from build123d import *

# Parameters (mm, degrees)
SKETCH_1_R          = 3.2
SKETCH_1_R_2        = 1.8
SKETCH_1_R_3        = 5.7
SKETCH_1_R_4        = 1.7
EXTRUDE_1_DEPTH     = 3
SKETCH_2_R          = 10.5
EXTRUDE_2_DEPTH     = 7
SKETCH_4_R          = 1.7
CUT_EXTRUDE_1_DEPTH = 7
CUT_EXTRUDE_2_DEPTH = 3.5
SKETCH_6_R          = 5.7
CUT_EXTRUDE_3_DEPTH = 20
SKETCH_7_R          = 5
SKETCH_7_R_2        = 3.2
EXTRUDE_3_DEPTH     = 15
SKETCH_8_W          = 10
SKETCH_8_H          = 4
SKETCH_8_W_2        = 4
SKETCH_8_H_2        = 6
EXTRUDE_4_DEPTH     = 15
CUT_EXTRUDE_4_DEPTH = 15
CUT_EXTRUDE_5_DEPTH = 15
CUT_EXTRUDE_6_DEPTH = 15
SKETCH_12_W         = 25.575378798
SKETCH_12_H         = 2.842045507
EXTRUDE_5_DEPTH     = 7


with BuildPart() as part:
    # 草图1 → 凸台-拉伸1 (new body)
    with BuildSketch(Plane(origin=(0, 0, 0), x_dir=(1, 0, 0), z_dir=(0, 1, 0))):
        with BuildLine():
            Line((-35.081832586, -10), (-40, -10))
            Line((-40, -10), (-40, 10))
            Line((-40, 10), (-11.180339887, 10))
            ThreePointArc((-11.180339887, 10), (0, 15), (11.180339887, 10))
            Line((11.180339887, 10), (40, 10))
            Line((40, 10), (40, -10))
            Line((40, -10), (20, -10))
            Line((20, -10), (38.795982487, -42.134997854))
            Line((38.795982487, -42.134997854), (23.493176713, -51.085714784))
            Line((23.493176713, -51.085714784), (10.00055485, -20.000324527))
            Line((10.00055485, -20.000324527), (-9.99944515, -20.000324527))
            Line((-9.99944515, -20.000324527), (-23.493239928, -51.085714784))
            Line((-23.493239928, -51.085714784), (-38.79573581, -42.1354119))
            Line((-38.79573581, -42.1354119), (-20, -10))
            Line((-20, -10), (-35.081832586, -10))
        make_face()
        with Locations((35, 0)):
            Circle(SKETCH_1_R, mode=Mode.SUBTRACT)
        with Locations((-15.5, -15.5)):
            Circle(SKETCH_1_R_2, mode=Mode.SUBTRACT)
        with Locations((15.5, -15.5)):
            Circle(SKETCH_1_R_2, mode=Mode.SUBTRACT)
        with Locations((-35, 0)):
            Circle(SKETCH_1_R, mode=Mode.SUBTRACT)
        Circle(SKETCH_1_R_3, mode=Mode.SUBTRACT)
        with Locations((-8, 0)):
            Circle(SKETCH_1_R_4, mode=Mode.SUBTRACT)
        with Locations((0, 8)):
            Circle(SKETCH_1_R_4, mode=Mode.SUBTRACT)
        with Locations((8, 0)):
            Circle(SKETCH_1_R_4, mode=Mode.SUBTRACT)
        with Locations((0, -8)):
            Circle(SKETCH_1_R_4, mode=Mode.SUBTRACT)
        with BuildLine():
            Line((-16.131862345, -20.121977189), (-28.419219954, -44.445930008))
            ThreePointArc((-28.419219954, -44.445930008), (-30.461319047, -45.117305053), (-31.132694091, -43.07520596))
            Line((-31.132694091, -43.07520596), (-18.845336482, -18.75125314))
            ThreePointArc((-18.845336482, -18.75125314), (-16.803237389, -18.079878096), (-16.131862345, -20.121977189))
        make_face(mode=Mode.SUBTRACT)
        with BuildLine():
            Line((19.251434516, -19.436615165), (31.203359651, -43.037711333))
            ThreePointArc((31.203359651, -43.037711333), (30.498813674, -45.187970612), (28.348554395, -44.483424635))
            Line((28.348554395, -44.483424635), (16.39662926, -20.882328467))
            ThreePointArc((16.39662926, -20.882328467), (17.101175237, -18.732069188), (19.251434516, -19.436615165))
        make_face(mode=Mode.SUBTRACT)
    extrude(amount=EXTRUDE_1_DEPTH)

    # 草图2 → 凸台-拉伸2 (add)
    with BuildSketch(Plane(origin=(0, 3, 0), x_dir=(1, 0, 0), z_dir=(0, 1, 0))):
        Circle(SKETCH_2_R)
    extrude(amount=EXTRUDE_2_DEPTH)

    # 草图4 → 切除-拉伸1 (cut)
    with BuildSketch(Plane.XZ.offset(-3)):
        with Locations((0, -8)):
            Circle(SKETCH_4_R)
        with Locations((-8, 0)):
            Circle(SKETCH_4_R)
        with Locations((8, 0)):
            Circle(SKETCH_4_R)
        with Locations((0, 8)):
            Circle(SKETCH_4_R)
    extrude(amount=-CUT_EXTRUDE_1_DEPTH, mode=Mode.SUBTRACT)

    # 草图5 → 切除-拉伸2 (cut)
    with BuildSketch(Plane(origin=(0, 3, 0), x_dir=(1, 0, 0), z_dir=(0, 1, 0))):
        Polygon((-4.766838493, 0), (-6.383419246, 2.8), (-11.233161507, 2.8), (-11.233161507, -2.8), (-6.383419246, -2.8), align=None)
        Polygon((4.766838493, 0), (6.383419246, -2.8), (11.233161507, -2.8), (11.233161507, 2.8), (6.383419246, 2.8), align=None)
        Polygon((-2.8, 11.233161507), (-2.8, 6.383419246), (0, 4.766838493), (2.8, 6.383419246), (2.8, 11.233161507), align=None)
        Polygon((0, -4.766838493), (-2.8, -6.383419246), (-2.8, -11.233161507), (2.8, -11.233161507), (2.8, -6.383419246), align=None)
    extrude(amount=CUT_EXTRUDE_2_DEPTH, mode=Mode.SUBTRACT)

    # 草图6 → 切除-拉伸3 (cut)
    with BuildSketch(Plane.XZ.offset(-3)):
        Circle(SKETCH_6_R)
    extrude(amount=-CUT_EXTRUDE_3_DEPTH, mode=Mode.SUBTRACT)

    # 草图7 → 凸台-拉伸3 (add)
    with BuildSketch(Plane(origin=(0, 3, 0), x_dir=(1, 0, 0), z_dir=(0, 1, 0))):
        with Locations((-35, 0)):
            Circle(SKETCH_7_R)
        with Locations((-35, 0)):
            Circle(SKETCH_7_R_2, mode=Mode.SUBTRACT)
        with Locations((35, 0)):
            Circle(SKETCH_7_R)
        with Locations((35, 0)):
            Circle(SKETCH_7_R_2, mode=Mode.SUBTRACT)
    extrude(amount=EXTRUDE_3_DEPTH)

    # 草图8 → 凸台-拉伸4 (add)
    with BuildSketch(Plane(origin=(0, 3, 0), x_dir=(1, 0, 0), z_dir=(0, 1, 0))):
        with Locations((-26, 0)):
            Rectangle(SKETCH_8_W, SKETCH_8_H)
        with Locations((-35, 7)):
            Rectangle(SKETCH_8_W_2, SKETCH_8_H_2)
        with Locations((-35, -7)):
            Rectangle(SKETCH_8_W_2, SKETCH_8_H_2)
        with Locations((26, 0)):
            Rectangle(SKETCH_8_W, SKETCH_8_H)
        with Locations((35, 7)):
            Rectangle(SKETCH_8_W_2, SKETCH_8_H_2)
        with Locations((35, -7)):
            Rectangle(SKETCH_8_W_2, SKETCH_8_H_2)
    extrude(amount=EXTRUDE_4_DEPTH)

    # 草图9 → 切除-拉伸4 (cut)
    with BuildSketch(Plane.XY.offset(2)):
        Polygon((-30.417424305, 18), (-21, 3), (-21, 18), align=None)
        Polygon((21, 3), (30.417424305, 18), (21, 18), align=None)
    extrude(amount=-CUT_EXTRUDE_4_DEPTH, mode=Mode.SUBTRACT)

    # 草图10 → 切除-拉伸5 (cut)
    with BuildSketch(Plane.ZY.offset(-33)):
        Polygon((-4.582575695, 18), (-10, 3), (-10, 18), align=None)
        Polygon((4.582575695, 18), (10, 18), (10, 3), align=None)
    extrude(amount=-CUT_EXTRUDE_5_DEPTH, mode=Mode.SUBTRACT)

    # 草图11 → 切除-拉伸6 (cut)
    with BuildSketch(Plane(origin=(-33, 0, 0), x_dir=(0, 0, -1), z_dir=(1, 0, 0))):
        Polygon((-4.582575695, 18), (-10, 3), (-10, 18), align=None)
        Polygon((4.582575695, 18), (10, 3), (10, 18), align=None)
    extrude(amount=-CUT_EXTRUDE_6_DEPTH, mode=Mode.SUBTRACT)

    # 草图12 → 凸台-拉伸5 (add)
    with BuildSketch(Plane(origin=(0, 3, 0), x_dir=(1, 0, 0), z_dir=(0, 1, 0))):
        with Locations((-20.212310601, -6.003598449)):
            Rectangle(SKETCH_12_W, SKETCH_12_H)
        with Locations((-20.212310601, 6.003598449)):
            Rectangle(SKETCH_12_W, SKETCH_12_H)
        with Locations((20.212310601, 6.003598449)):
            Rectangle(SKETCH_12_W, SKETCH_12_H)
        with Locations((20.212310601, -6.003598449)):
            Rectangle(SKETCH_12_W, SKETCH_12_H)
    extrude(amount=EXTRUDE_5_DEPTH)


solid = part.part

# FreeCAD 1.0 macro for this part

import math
import FreeCAD as App
import Part
import Sketcher
Q = App.Units.Quantity

doc = App.newDocument("Part")
body = doc.addObject("PartDesign::Body", "Body")

# Sketch on XZ plane
sketch1 = body.newObject("Sketcher::SketchObject", "Sketch")
sketch1.AttachmentSupport = (doc.getObject("XZ_Plane"), [""])
sketch1.MapMode = "FlatFace"
sketch1.addGeometry([
    Part.LineSegment(App.Vector(-40, -10, 0), App.Vector(-40, 10, 0)),  # 0
    Part.LineSegment(App.Vector(-40, 10, 0), App.Vector(-20, 10, 0)),  # 1
    Part.LineSegment(App.Vector(-20, 10, 0), App.Vector(-38.8, 42.1, 0)),  # 2
    Part.LineSegment(App.Vector(-38.8, 42.1, 0), App.Vector(-23.5, 51.1, 0)),  # 3
    Part.LineSegment(App.Vector(-23.5, 51.1, 0), App.Vector(-10, 20, 0)),  # 4
    Part.LineSegment(App.Vector(-10, 20, 0), App.Vector(10, 20, 0)),  # 5
    Part.LineSegment(App.Vector(10, 20, 0), App.Vector(23.5, 51.1, 0)),  # 6
    Part.LineSegment(App.Vector(23.5, 51.1, 0), App.Vector(38.8, 42.1, 0)),  # 7
    Part.LineSegment(App.Vector(38.8, 42.1, 0), App.Vector(20, 10, 0)),  # 8
    Part.LineSegment(App.Vector(20, 10, 0), App.Vector(40, 10, 0)),  # 9
    Part.LineSegment(App.Vector(40, 10, 0), App.Vector(40, -10, 0)),  # 10
    Part.LineSegment(App.Vector(40, -10, 0), App.Vector(11.2, -10, 0)),  # 11
    Part.ArcOfCircle(Part.Circle(App.Vector(0, 0, 0), App.Vector(0, 0, 1), 15), math.radians(-138), math.radians(-42)),  # 12
    Part.LineSegment(App.Vector(-11.2, -10, 0), App.Vector(-40, -10, 0)),  # 13
    Part.LineSegment(App.Vector(19.3, 19.4, 0), App.Vector(31.2, 43, 0)),  # 14
    Part.ArcOfCircle(Part.Circle(App.Vector(29.8, 43.8, 0), App.Vector(0, 0, 1), 1.6), math.radians(-27), math.radians(153)),  # 15
    Part.LineSegment(App.Vector(28.3, 44.5, 0), App.Vector(16.4, 20.9, 0)),  # 16
    Part.ArcOfCircle(Part.Circle(App.Vector(17.8, 20.2, 0), App.Vector(0, 0, 1), 1.6), math.radians(153), math.radians(333)),  # 17
    Part.LineSegment(App.Vector(-16.1, 20.1, 0), App.Vector(-28.4, 44.4, 0)),  # 18
    Part.ArcOfCircle(Part.Circle(App.Vector(-29.8, 43.8, 0), App.Vector(0, 0, 1), 1.5), math.radians(27), math.radians(207)),  # 19
    Part.LineSegment(App.Vector(-31.1, 43.1, 0), App.Vector(-18.8, 18.8, 0)),  # 20
    Part.ArcOfCircle(Part.Circle(App.Vector(-17.5, 19.4, 0), App.Vector(0, 0, 1), 1.5), math.radians(-153), math.radians(27)),  # 21
    Part.Circle(App.Vector(15.5, 15.5, 0), App.Vector(0, 0, 1), 1.8),  # 22
    Part.Circle(App.Vector(0, 8, 0), App.Vector(0, 0, 1), 1.7),  # 23
    Part.Circle(App.Vector(35, 0, 0), App.Vector(0, 0, 1), 3.2),  # 24
    Part.Circle(App.Vector(8, 0, 0), App.Vector(0, 0, 1), 1.7),  # 25
    Part.Circle(App.Vector(0, 0, 0), App.Vector(0, 0, 1), 5.7),  # 26
    Part.Circle(App.Vector(0, -8, 0), App.Vector(0, 0, 1), 1.7),  # 27
    Part.Circle(App.Vector(-15.5, 15.5, 0), App.Vector(0, 0, 1), 1.8),  # 28
    Part.Circle(App.Vector(-8, 0, 0), App.Vector(0, 0, 1), 1.7),  # 29
    Part.Circle(App.Vector(-35, 0, 0), App.Vector(0, 0, 1), 3.2),  # 30
], False)
sketch1.addConstraint([
    Sketcher.Constraint("Coincident", 0, 2, 1, 1),
    Sketcher.Constraint("Coincident", 1, 2, 2, 1),
    Sketcher.Constraint("Coincident", 2, 2, 3, 1),
    Sketcher.Constraint("Coincident", 3, 2, 4, 1),
    Sketcher.Constraint("Coincident", 4, 2, 5, 1),
    Sketcher.Constraint("Coincident", 5, 2, 6, 1),
    Sketcher.Constraint("Coincident", 6, 2, 7, 1),
    Sketcher.Constraint("Coincident", 7, 2, 8, 1),
    Sketcher.Constraint("Coincident", 8, 2, 9, 1),
    Sketcher.Constraint("Coincident", 9, 2, 10, 1),
    Sketcher.Constraint("Coincident", 10, 2, 11, 1),
    Sketcher.Constraint("Coincident", 11, 2, 12, 2),
    Sketcher.Constraint("Coincident", 12, 1, 13, 1),
    Sketcher.Constraint("Coincident", 13, 2, 0, 1),
    Sketcher.Constraint("Tangent", 14, 2, 15, 1),
    Sketcher.Constraint("Tangent", 15, 2, 16, 1),
    Sketcher.Constraint("Tangent", 16, 2, 17, 1),
    Sketcher.Constraint("Tangent", 17, 2, 14, 1),
    Sketcher.Constraint("Tangent", 18, 2, 19, 1),
    Sketcher.Constraint("Tangent", 19, 2, 20, 1),
    Sketcher.Constraint("Tangent", 20, 2, 21, 1),
    Sketcher.Constraint("Tangent", 21, 2, 18, 1),
    Sketcher.Constraint("Vertical", 0),
    Sketcher.Constraint("Horizontal", 1),
    Sketcher.Constraint("Horizontal", 5),
    Sketcher.Constraint("Horizontal", 9),
    Sketcher.Constraint("Vertical", 10),
    Sketcher.Constraint("Horizontal", 11),
    Sketcher.Constraint("Horizontal", 13),
    Sketcher.Constraint("Coincident", 12, 3, -1, 1),
    Sketcher.Constraint("Coincident", 26, 3, -1, 1),
    Sketcher.Constraint("Equal", 15, 17),
    Sketcher.Constraint("Equal", 19, 21),
    Sketcher.Constraint("Equal", 23, 25),
    Sketcher.Constraint("Equal", 25, 27),
    Sketcher.Constraint("Equal", 22, 28),
    Sketcher.Constraint("Equal", 27, 29),
    Sketcher.Constraint("Equal", 24, 30),
    Sketcher.Constraint("Symmetric", 23, 3, 27, 3, -1, 1),
    Sketcher.Constraint("Symmetric", 25, 3, 29, 3, -1, 1),
    Sketcher.Constraint("Symmetric", 24, 3, 30, 3, -1, 1),
    Sketcher.Constraint("Symmetric", 0, 2, 10, 2, -1, 1),
    Sketcher.Constraint("Symmetric", 15, 3, 19, 3, -2),
    Sketcher.Constraint("Symmetric", 22, 3, 28, 3, -2),
    Sketcher.Constraint("Symmetric", 1, 2, 8, 2, -2),
    Sketcher.Constraint("PointOnObject", 23, 3, -2),
    Sketcher.Constraint("PointOnObject", 24, 3, -1),
    Sketcher.Constraint("PointOnObject", 25, 3, -1),
    Sketcher.Constraint("Perpendicular", 2, 3),
    Sketcher.Constraint("Perpendicular", 7, 8),
    Sketcher.Constraint("Horizontal", 3, 2, 6, 2),
    Sketcher.Constraint("Horizontal", 11, 2, 12, 1),
    Sketcher.Constraint("Horizontal", 21, 3, 17, 2),
    Sketcher.Constraint("Equal", 1, 5),
    Sketcher.Constraint("Equal", 9, 0),
    Sketcher.Constraint("Radius", 12, 15.0),
    Sketcher.Constraint("Diameter", 22, 3.6),
    Sketcher.Constraint("Diameter", 23, 3.4),
    Sketcher.Constraint("Diameter", 24, 6.4),
    Sketcher.Constraint("Diameter", 26, 11.4),
    Sketcher.Constraint("Radius", 15, 1.6),
    Sketcher.Constraint("DistanceX", 1, 1, 1, 2, 20.0),
    Sketcher.Constraint("DistanceY", -1, 1, 23, 3, 8.0),
    Sketcher.Constraint("DistanceX", -1, 1, 24, 3, 35.0),
    Sketcher.Constraint("DistanceX", -1, 1, 25, 3, 8.0),
    Sketcher.Constraint("DistanceX", 0, 2, -1, 1, 40.0),
    Sketcher.Constraint("DistanceX", -1, 1, 22, 3, 15.5),
    Sketcher.Constraint("DistanceY", -1, 1, 22, 3, 15.5),
    Sketcher.Constraint("Radius", 19, 1.520019),
    Sketcher.Constraint("DistanceX", 21, 3, -1, 1, 17.488599),
    Sketcher.Constraint("DistanceY", 21, 3, 3, 2, 31.6491),
    Sketcher.Constraint("Distance", 7, 17.72826),
    Sketcher.Constraint("Distance", 8, 37.22831),
    Sketcher.Constraint("Distance", 18, 27.251309),
    Sketcher.Constraint("DistanceX", -1, 1, 17, 3, 17.824032),
    Sketcher.Constraint("DistanceY", -1, 1, 17, 3, 20.159472),
    Sketcher.Constraint("DistanceY", -1, 1, 2, 2, 42.135412),
    Sketcher.Constraint("DistanceX", 3, 2, -1, 1, 23.49324),
    Sketcher.Constraint("DistanceX", -1, 1, 14, 2, 31.20336),
    Sketcher.Constraint("DistanceY", 21, 3, 4, 2, 0.563709),
    Sketcher.Constraint("DistanceX", 5, 2, 6, 2, 13.492622),
])
pad1 = body.newObject("PartDesign::Pad", "Pad")
pad1.Profile = sketch1
pad1.Length = 3
pad1.Reversed = True

# Sketch on XZ plane
sketch2 = body.newObject("Sketcher::SketchObject", "Sketch001")
sketch2.AttachmentSupport = (doc.getObject("XZ_Plane"), [""])
sketch2.MapMode = "FlatFace"
sketch2.AttachmentOffset = App.Placement(App.Vector(0, 0, -3), App.Rotation())
sketch2.addGeometry(Part.Circle(App.Vector(0, 0, 0), App.Vector(0, 0, 1), 10), False)
sketch2.addConstraint([
    Sketcher.Constraint("Coincident", 0, 3, -1, 1),
    Sketcher.Constraint("Diameter", 0, 21.0),
])
pad2 = body.newObject("PartDesign::Pad", "Pad001")
pad2.Profile = sketch2
pad2.Length = 7
pad2.Reversed = True

# Sketch on XZ plane
sketch3 = body.newObject("Sketcher::SketchObject", "Sketch002")
sketch3.AttachmentSupport = (doc.getObject("XZ_Plane"), [""])
sketch3.MapMode = "FlatFace"
sketch3.AttachmentOffset = App.Placement(App.Vector(0, 0, -3), App.Rotation())
sketch3.addGeometry([
    Part.Circle(App.Vector(0, -8, 0), App.Vector(0, 0, 1), 1.7),
    Part.Circle(App.Vector(-8, 0, 0), App.Vector(0, 0, 1), 1.7),
    Part.Circle(App.Vector(8, 0, 0), App.Vector(0, 0, 1), 1.7),
    Part.Circle(App.Vector(0, 8, 0), App.Vector(0, 0, 1), 1.7),
], False)
sketch3.addConstraint([
    Sketcher.Constraint("Equal", 0, 1),
    Sketcher.Constraint("Equal", 1, 2),
    Sketcher.Constraint("Equal", 2, 3),
    Sketcher.Constraint("Symmetric", 1, 3, 2, 3, -1, 1),
    Sketcher.Constraint("Symmetric", 0, 3, 3, 3, -1, 1),
    Sketcher.Constraint("PointOnObject", 0, 3, -2),
    Sketcher.Constraint("PointOnObject", 1, 3, -1),
    Sketcher.Constraint("Diameter", 0, 3.4),
    Sketcher.Constraint("DistanceY", 0, 3, -1, 1, 8.0),
    Sketcher.Constraint("DistanceX", 1, 3, -1, 1, 8.0),
])
pocket1 = body.newObject("PartDesign::Pocket", "Pocket")
pocket1.Profile = sketch3
pocket1.Length = 7

# Sketch on XZ plane
sketch4 = body.newObject("Sketcher::SketchObject", "Sketch003")
sketch4.AttachmentSupport = (doc.getObject("XZ_Plane"), [""])
sketch4.MapMode = "FlatFace"
sketch4.AttachmentOffset = App.Placement(App.Vector(0, 0, -3), App.Rotation())
sketch4.addGeometry([
    Part.LineSegment(App.Vector(-4.8, 0, 0), App.Vector(-6.4, -2.8, 0)),  # 0
    Part.LineSegment(App.Vector(-6.4, -2.8, 0), App.Vector(-11.2, -2.8, 0)),  # 1
    Part.LineSegment(App.Vector(-11.2, -2.8, 0), App.Vector(-11.2, 2.8, 0)),  # 2
    Part.LineSegment(App.Vector(-11.2, 2.8, 0), App.Vector(-6.4, 2.8, 0)),  # 3
    Part.LineSegment(App.Vector(-6.4, 2.8, 0), App.Vector(-4.8, 0, 0)),  # 4
    Part.LineSegment(App.Vector(4.8, 0, 0), App.Vector(6.4, 2.8, 0)),  # 5
    Part.LineSegment(App.Vector(6.4, 2.8, 0), App.Vector(11.2, 2.8, 0)),  # 6
    Part.LineSegment(App.Vector(11.2, 2.8, 0), App.Vector(11.2, -2.8, 0)),  # 7
    Part.LineSegment(App.Vector(11.2, -2.8, 0), App.Vector(6.4, -2.8, 0)),  # 8
    Part.LineSegment(App.Vector(6.4, -2.8, 0), App.Vector(4.8, 0, 0)),  # 9
    Part.LineSegment(App.Vector(-2.8, -11.2, 0), App.Vector(-2.8, -6.4, 0)),  # 10
    Part.LineSegment(App.Vector(-2.8, -6.4, 0), App.Vector(0, -4.8, 0)),  # 11
    Part.LineSegment(App.Vector(0, -4.8, 0), App.Vector(2.8, -6.4, 0)),  # 12
    Part.LineSegment(App.Vector(2.8, -6.4, 0), App.Vector(2.8, -11.2, 0)),  # 13
    Part.LineSegment(App.Vector(2.8, -11.2, 0), App.Vector(-2.8, -11.2, 0)),  # 14
    Part.LineSegment(App.Vector(0, 4.8, 0), App.Vector(-2.8, 6.4, 0)),  # 15
    Part.LineSegment(App.Vector(-2.8, 6.4, 0), App.Vector(-2.8, 11.2, 0)),  # 16
    Part.LineSegment(App.Vector(-2.8, 11.2, 0), App.Vector(2.8, 11.2, 0)),  # 17
    Part.LineSegment(App.Vector(2.8, 11.2, 0), App.Vector(2.8, 6.4, 0)),  # 18
    Part.LineSegment(App.Vector(2.8, 6.4, 0), App.Vector(0, 4.8, 0)),  # 19
], False)
sketch4.addConstraint([
    Sketcher.Constraint("Coincident", 0, 2, 1, 1),
    Sketcher.Constraint("Coincident", 1, 2, 2, 1),
    Sketcher.Constraint("Coincident", 2, 2, 3, 1),
    Sketcher.Constraint("Coincident", 3, 2, 4, 1),
    Sketcher.Constraint("Coincident", 4, 2, 0, 1),
    Sketcher.Constraint("Coincident", 5, 2, 6, 1),
    Sketcher.Constraint("Coincident", 6, 2, 7, 1),
    Sketcher.Constraint("Coincident", 7, 2, 8, 1),
    Sketcher.Constraint("Coincident", 8, 2, 9, 1),
    Sketcher.Constraint("Coincident", 9, 2, 5, 1),
    Sketcher.Constraint("Coincident", 10, 2, 11, 1),
    Sketcher.Constraint("Coincident", 11, 2, 12, 1),
    Sketcher.Constraint("Coincident", 12, 2, 13, 1),
    Sketcher.Constraint("Coincident", 13, 2, 14, 1),
    Sketcher.Constraint("Coincident", 14, 2, 10, 1),
    Sketcher.Constraint("Coincident", 15, 2, 16, 1),
    Sketcher.Constraint("Coincident", 16, 2, 17, 1),
    Sketcher.Constraint("Coincident", 17, 2, 18, 1),
    Sketcher.Constraint("Coincident", 18, 2, 19, 1),
    Sketcher.Constraint("Coincident", 19, 2, 15, 1),
    Sketcher.Constraint("Horizontal", 1),
    Sketcher.Constraint("Vertical", 2),
    Sketcher.Constraint("Horizontal", 3),
    Sketcher.Constraint("Horizontal", 6),
    Sketcher.Constraint("Vertical", 7),
    Sketcher.Constraint("Horizontal", 8),
    Sketcher.Constraint("Vertical", 10),
    Sketcher.Constraint("Vertical", 13),
    Sketcher.Constraint("Horizontal", 14),
    Sketcher.Constraint("Vertical", 16),
    Sketcher.Constraint("Horizontal", 17),
    Sketcher.Constraint("Vertical", 18),
    Sketcher.Constraint("Symmetric", 0, 2, 5, 2, -1, 1),
    Sketcher.Constraint("Symmetric", 2, 2, 7, 2, -1, 1),
    Sketcher.Constraint("Symmetric", 4, 2, 9, 2, -1, 1),
    Sketcher.Constraint("Symmetric", 12, 2, 15, 2, -1, 1),
    Sketcher.Constraint("Symmetric", 14, 2, 17, 2, -1, 1),
    Sketcher.Constraint("Symmetric", 11, 2, 19, 2, -1, 1),
    Sketcher.Constraint("Symmetric", 3, 2, 5, 2, -2),
    Sketcher.Constraint("Symmetric", 10, 2, 12, 2, -2),
    Sketcher.Constraint("PointOnObject", 4, 2, -1),
    Sketcher.Constraint("PointOnObject", 11, 2, -2),
    Sketcher.Constraint("Parallel", 4, 9),
    Sketcher.Constraint("Perpendicular", 9, 11),
    Sketcher.Constraint("Parallel", 11, 19),
    Sketcher.Constraint("Equal", 17, 2),
    Sketcher.Constraint("Equal", 8, 10),
    Sketcher.Constraint("Angle", 0, Q("-120 deg")),
    Sketcher.Constraint("DistanceX", 14, 2, 14, 1, 5.6),
    Sketcher.Constraint("DistanceX", 4, 2, 6, 2, 16.0),
    Sketcher.Constraint("DistanceX", 1, 2, 1, 1, 4.849742),
    Sketcher.Constraint("DistanceY", 10, 2, -1, 1, 6.383419),
])
pocket2 = body.newObject("PartDesign::Pocket", "Pocket001")
pocket2.Profile = sketch4
pocket2.Length = 3.5

# Sketch on XZ plane
sketch5 = body.newObject("Sketcher::SketchObject", "Sketch004")
sketch5.AttachmentSupport = (doc.getObject("XZ_Plane"), [""])
sketch5.MapMode = "FlatFace"
sketch5.AttachmentOffset = App.Placement(App.Vector(0, 0, -3), App.Rotation())
sketch5.addGeometry(Part.Circle(App.Vector(0, 0, 0), App.Vector(0, 0, 1), 6), False)
sketch5.addConstraint([
    Sketcher.Constraint("Coincident", 0, 3, -1, 1),
    Sketcher.Constraint("Diameter", 0, 11.4),
])
pocket3 = body.newObject("PartDesign::Pocket", "Pocket002")
pocket3.Profile = sketch5
pocket3.Length = 20

# Sketch on XZ plane
sketch6 = body.newObject("Sketcher::SketchObject", "Sketch005")
sketch6.AttachmentSupport = (doc.getObject("XZ_Plane"), [""])
sketch6.MapMode = "FlatFace"
sketch6.AttachmentOffset = App.Placement(App.Vector(0, 0, -3), App.Rotation())
sketch6.addGeometry([
    Part.Circle(App.Vector(-35, 0, 0), App.Vector(0, 0, 1), 5),
    Part.Circle(App.Vector(-35, 0, 0), App.Vector(0, 0, 1), 3.2),
    Part.Circle(App.Vector(35, 0, 0), App.Vector(0, 0, 1), 5),
    Part.Circle(App.Vector(35, 0, 0), App.Vector(0, 0, 1), 3.2),
], False)
sketch6.addConstraint([
    Sketcher.Constraint("Coincident", 1, 3, 0, 3),
    Sketcher.Constraint("Coincident", 3, 3, 2, 3),
    Sketcher.Constraint("Equal", 0, 2),
    Sketcher.Constraint("Equal", 1, 3),
    Sketcher.Constraint("Symmetric", 0, 3, 2, 3, -1, 1),
    Sketcher.Constraint("PointOnObject", 0, 3, -1),
    Sketcher.Constraint("Diameter", 0, 10.0),
    Sketcher.Constraint("Diameter", 1, 6.4),
    Sketcher.Constraint("DistanceX", 0, 3, -1, 1, 35.0),
])
pad3 = body.newObject("PartDesign::Pad", "Pad002")
pad3.Profile = sketch6
pad3.Length = 15
pad3.Reversed = True

# Sketch on XZ plane
sketch7 = body.newObject("Sketcher::SketchObject", "Sketch006")
sketch7.AttachmentSupport = (doc.getObject("XZ_Plane"), [""])
sketch7.MapMode = "FlatFace"
sketch7.AttachmentOffset = App.Placement(App.Vector(0, 0, -3), App.Rotation())
sketch7.addGeometry([
    Part.LineSegment(App.Vector(-31, -2, 0), App.Vector(-31, 2, 0)),  # 0
    Part.LineSegment(App.Vector(-31, 2, 0), App.Vector(-21, 2, 0)),  # 1
    Part.LineSegment(App.Vector(-21, 2, 0), App.Vector(-21, -2, 0)),  # 2
    Part.LineSegment(App.Vector(-21, -2, 0), App.Vector(-31, -2, 0)),  # 3
    Part.LineSegment(App.Vector(-37, -10, 0), App.Vector(-37, -4, 0)),  # 4
    Part.LineSegment(App.Vector(-37, -4, 0), App.Vector(-33, -4, 0)),  # 5
    Part.LineSegment(App.Vector(-33, -4, 0), App.Vector(-33, -10, 0)),  # 6
    Part.LineSegment(App.Vector(-33, -10, 0), App.Vector(-37, -10, 0)),  # 7
    Part.LineSegment(App.Vector(-37, 4, 0), App.Vector(-37, 10, 0)),  # 8
    Part.LineSegment(App.Vector(-37, 10, 0), App.Vector(-33, 10, 0)),  # 9
    Part.LineSegment(App.Vector(-33, 10, 0), App.Vector(-33, 4, 0)),  # 10
    Part.LineSegment(App.Vector(-33, 4, 0), App.Vector(-37, 4, 0)),  # 11
    Part.LineSegment(App.Vector(21, -2, 0), App.Vector(21, 2, 0)),  # 12
    Part.LineSegment(App.Vector(21, 2, 0), App.Vector(31, 2, 0)),  # 13
    Part.LineSegment(App.Vector(31, 2, 0), App.Vector(31, -2, 0)),  # 14
    Part.LineSegment(App.Vector(31, -2, 0), App.Vector(21, -2, 0)),  # 15
    Part.LineSegment(App.Vector(33, -10, 0), App.Vector(33, -4, 0)),  # 16
    Part.LineSegment(App.Vector(33, -4, 0), App.Vector(37, -4, 0)),  # 17
    Part.LineSegment(App.Vector(37, -4, 0), App.Vector(37, -10, 0)),  # 18
    Part.LineSegment(App.Vector(37, -10, 0), App.Vector(33, -10, 0)),  # 19
    Part.LineSegment(App.Vector(33, 4, 0), App.Vector(33, 10, 0)),  # 20
    Part.LineSegment(App.Vector(33, 10, 0), App.Vector(37, 10, 0)),  # 21
    Part.LineSegment(App.Vector(37, 10, 0), App.Vector(37, 4, 0)),  # 22
    Part.LineSegment(App.Vector(37, 4, 0), App.Vector(33, 4, 0)),  # 23
], False)
sketch7.addConstraint([
    Sketcher.Constraint("Coincident", 0, 2, 1, 1),
    Sketcher.Constraint("Coincident", 1, 2, 2, 1),
    Sketcher.Constraint("Coincident", 2, 2, 3, 1),
    Sketcher.Constraint("Coincident", 3, 2, 0, 1),
    Sketcher.Constraint("Coincident", 4, 2, 5, 1),
    Sketcher.Constraint("Coincident", 5, 2, 6, 1),
    Sketcher.Constraint("Coincident", 6, 2, 7, 1),
    Sketcher.Constraint("Coincident", 7, 2, 4, 1),
    Sketcher.Constraint("Coincident", 8, 2, 9, 1),
    Sketcher.Constraint("Coincident", 9, 2, 10, 1),
    Sketcher.Constraint("Coincident", 10, 2, 11, 1),
    Sketcher.Constraint("Coincident", 11, 2, 8, 1),
    Sketcher.Constraint("Coincident", 12, 2, 13, 1),
    Sketcher.Constraint("Coincident", 13, 2, 14, 1),
    Sketcher.Constraint("Coincident", 14, 2, 15, 1),
    Sketcher.Constraint("Coincident", 15, 2, 12, 1),
    Sketcher.Constraint("Coincident", 16, 2, 17, 1),
    Sketcher.Constraint("Coincident", 17, 2, 18, 1),
    Sketcher.Constraint("Coincident", 18, 2, 19, 1),
    Sketcher.Constraint("Coincident", 19, 2, 16, 1),
    Sketcher.Constraint("Coincident", 20, 2, 21, 1),
    Sketcher.Constraint("Coincident", 21, 2, 22, 1),
    Sketcher.Constraint("Coincident", 22, 2, 23, 1),
    Sketcher.Constraint("Coincident", 23, 2, 20, 1),
    Sketcher.Constraint("Vertical", 0),
    Sketcher.Constraint("Horizontal", 1),
    Sketcher.Constraint("Vertical", 2),
    Sketcher.Constraint("Horizontal", 3),
    Sketcher.Constraint("Vertical", 4),
    Sketcher.Constraint("Horizontal", 5),
    Sketcher.Constraint("Vertical", 6),
    Sketcher.Constraint("Horizontal", 7),
    Sketcher.Constraint("Vertical", 8),
    Sketcher.Constraint("Horizontal", 9),
    Sketcher.Constraint("Vertical", 10),
    Sketcher.Constraint("Horizontal", 11),
    Sketcher.Constraint("Vertical", 12),
    Sketcher.Constraint("Horizontal", 13),
    Sketcher.Constraint("Vertical", 14),
    Sketcher.Constraint("Horizontal", 15),
    Sketcher.Constraint("Vertical", 16),
    Sketcher.Constraint("Horizontal", 17),
    Sketcher.Constraint("Vertical", 18),
    Sketcher.Constraint("Horizontal", 19),
    Sketcher.Constraint("Vertical", 20),
    Sketcher.Constraint("Horizontal", 21),
    Sketcher.Constraint("Vertical", 22),
    Sketcher.Constraint("Horizontal", 23),
    Sketcher.Constraint("Symmetric", 2, 2, 12, 2, -1, 1),
    Sketcher.Constraint("Symmetric", 0, 2, 14, 2, -1, 1),
    Sketcher.Constraint("Symmetric", 10, 2, 16, 2, -1, 1),
    Sketcher.Constraint("Symmetric", 8, 2, 18, 2, -1, 1),
    Sketcher.Constraint("Symmetric", 6, 2, 20, 2, -1, 1),
    Sketcher.Constraint("Symmetric", 4, 2, 22, 2, -1, 1),
    Sketcher.Constraint("Symmetric", 5, 2, 16, 2, -2),
    Sketcher.Constraint("Symmetric", 7, 2, 18, 2, -2),
    Sketcher.Constraint("Horizontal", 1, 2, 12, 2),
    Sketcher.Constraint("Equal", 23, 0),
    Sketcher.Constraint("DistanceX", 1, 1, 1, 2, 10.0),
    Sketcher.Constraint("DistanceX", 5, 1, 5, 2, 4.0),
    Sketcher.Constraint("DistanceY", 4, 1, 4, 2, 6.0),
    Sketcher.Constraint("DistanceX", 0, 2, -1, 1, 31.0),
    Sketcher.Constraint("DistanceX", 4, 2, -1, 1, 37.0),
    Sketcher.Constraint("DistanceY", 4, 2, -1, 1, 4.0),
])
pad4 = body.newObject("PartDesign::Pad", "Pad003")
pad4.Profile = sketch7
pad4.Length = 15
pad4.Reversed = True

# Sketch on XY plane
sketch8 = body.newObject("Sketcher::SketchObject", "Sketch007")
sketch8.AttachmentSupport = (doc.getObject("XY_Plane"), [""])
sketch8.MapMode = "FlatFace"
sketch8.AttachmentOffset = App.Placement(App.Vector(0, 0, 2), App.Rotation())
sketch8.addGeometry([
    Part.LineSegment(App.Vector(-30, 18, 0), App.Vector(-21, 3, 0)),  # 0
    Part.LineSegment(App.Vector(-21, 3, 0), App.Vector(-21, 18, 0)),  # 1
    Part.LineSegment(App.Vector(-21, 18, 0), App.Vector(-30, 18, 0)),  # 2
    Part.LineSegment(App.Vector(21, 3, 0), App.Vector(30, 18, 0)),  # 3
    Part.LineSegment(App.Vector(30, 18, 0), App.Vector(21, 18, 0)),  # 4
    Part.LineSegment(App.Vector(21, 18, 0), App.Vector(21, 3, 0)),  # 5
], False)
sketch8.addConstraint([
    Sketcher.Constraint("Coincident", 0, 2, 1, 1),
    Sketcher.Constraint("Coincident", 1, 2, 2, 1),
    Sketcher.Constraint("Coincident", 2, 2, 0, 1),
    Sketcher.Constraint("Coincident", 3, 2, 4, 1),
    Sketcher.Constraint("Coincident", 4, 2, 5, 1),
    Sketcher.Constraint("Coincident", 5, 2, 3, 1),
    Sketcher.Constraint("Vertical", 1),
    Sketcher.Constraint("Horizontal", 2),
    Sketcher.Constraint("Horizontal", 4),
    Sketcher.Constraint("Vertical", 5),
    Sketcher.Constraint("Symmetric", 2, 2, 3, 2, -2),
    Sketcher.Constraint("Symmetric", 0, 2, 5, 2, -2),
    Sketcher.Constraint("DistanceY", 1, 1, 1, 2, 15.0),
    Sketcher.Constraint("DistanceX", 0, 2, -1, 1, 21.0),
    Sketcher.Constraint("DistanceY", -1, 1, 0, 2, 3.0),
    Sketcher.Constraint("DistanceX", 2, 2, 2, 1, 9.417424),
])
pocket4 = body.newObject("PartDesign::Pocket", "Pocket003")
pocket4.Profile = sketch8
pocket4.Length = 15

# Sketch on YZ plane
sketch9 = body.newObject("Sketcher::SketchObject", "Sketch008")
sketch9.AttachmentSupport = (doc.getObject("YZ_Plane"), [""])
sketch9.MapMode = "FlatFace"
sketch9.AttachmentOffset = App.Placement(App.Vector(0, 0, 33), App.Rotation())
sketch9.addGeometry([
    Part.LineSegment(App.Vector(3, -10, 0), App.Vector(18, -5, 0)),  # 0
    Part.LineSegment(App.Vector(18, -5, 0), App.Vector(18, -10, 0)),  # 1
    Part.LineSegment(App.Vector(18, -10, 0), App.Vector(3, -10, 0)),  # 2
    Part.LineSegment(App.Vector(18, 10, 0), App.Vector(18, 5, 0)),  # 3
    Part.LineSegment(App.Vector(18, 5, 0), App.Vector(3, 10, 0)),  # 4
    Part.LineSegment(App.Vector(3, 10, 0), App.Vector(18, 10, 0)),  # 5
], False)
sketch9.addConstraint([
    Sketcher.Constraint("Coincident", 0, 2, 1, 1),
    Sketcher.Constraint("Coincident", 1, 2, 2, 1),
    Sketcher.Constraint("Coincident", 2, 2, 0, 1),
    Sketcher.Constraint("Coincident", 3, 2, 4, 1),
    Sketcher.Constraint("Coincident", 4, 2, 5, 1),
    Sketcher.Constraint("Coincident", 5, 2, 3, 1),
    Sketcher.Constraint("Vertical", 1),
    Sketcher.Constraint("Horizontal", 2),
    Sketcher.Constraint("Vertical", 3),
    Sketcher.Constraint("Horizontal", 5),
    Sketcher.Constraint("Symmetric", 0, 2, 3, 2, -1),
    Sketcher.Constraint("Symmetric", 2, 2, 4, 2, -1),
    Sketcher.Constraint("DistanceX", 2, 2, 2, 1, 15.0),
    Sketcher.Constraint("DistanceX", -1, 1, 0, 2, 18.0),
    Sketcher.Constraint("DistanceY", 1, 2, -1, 1, 10.0),
    Sketcher.Constraint("DistanceY", 1, 2, 1, 1, 5.417424),
])
pocket5 = body.newObject("PartDesign::Pocket", "Pocket004")
pocket5.Profile = sketch9
pocket5.Length = 15
pocket5.Reversed = True

# Sketch on YZ plane
sketch10 = body.newObject("Sketcher::SketchObject", "Sketch009")
sketch10.AttachmentSupport = (doc.getObject("YZ_Plane"), [""])
sketch10.MapMode = "FlatFace"
sketch10.AttachmentOffset = App.Placement(App.Vector(0, 0, -33), App.Rotation())
sketch10.addGeometry([
    Part.LineSegment(App.Vector(3, 10, 0), App.Vector(18, 5, 0)),  # 0
    Part.LineSegment(App.Vector(18, 5, 0), App.Vector(18, 10, 0)),  # 1
    Part.LineSegment(App.Vector(18, 10, 0), App.Vector(3, 10, 0)),  # 2
    Part.LineSegment(App.Vector(18, -5, 0), App.Vector(3, -10, 0)),  # 3
    Part.LineSegment(App.Vector(3, -10, 0), App.Vector(18, -10, 0)),  # 4
    Part.LineSegment(App.Vector(18, -10, 0), App.Vector(18, -5, 0)),  # 5
], False)
sketch10.addConstraint([
    Sketcher.Constraint("Coincident", 0, 2, 1, 1),
    Sketcher.Constraint("Coincident", 1, 2, 2, 1),
    Sketcher.Constraint("Coincident", 2, 2, 0, 1),
    Sketcher.Constraint("Coincident", 3, 2, 4, 1),
    Sketcher.Constraint("Coincident", 4, 2, 5, 1),
    Sketcher.Constraint("Coincident", 5, 2, 3, 1),
    Sketcher.Constraint("Vertical", 1),
    Sketcher.Constraint("Horizontal", 2),
    Sketcher.Constraint("Horizontal", 4),
    Sketcher.Constraint("Vertical", 5),
    Sketcher.Constraint("Symmetric", 2, 2, 3, 2, -1),
    Sketcher.Constraint("Symmetric", 0, 2, 5, 2, -1),
    Sketcher.Constraint("DistanceX", 2, 2, 2, 1, 15.0),
    Sketcher.Constraint("DistanceX", -1, 1, 0, 2, 18.0),
    Sketcher.Constraint("DistanceY", -1, 1, 1, 2, 10.0),
    Sketcher.Constraint("DistanceY", 1, 1, 1, 2, 5.417424),
])
pocket6 = body.newObject("PartDesign::Pocket", "Pocket005")
pocket6.Profile = sketch10
pocket6.Length = 15

# Sketch on XZ plane
sketch11 = body.newObject("Sketcher::SketchObject", "Sketch010")
sketch11.AttachmentSupport = (doc.getObject("XZ_Plane"), [""])
sketch11.MapMode = "FlatFace"
sketch11.AttachmentOffset = App.Placement(App.Vector(0, 0, -3), App.Rotation())
sketch11.addGeometry([
    Part.LineSegment(App.Vector(-33, 4.6, 0), App.Vector(-33, 7.4, 0)),  # 0
    Part.LineSegment(App.Vector(-33, 7.4, 0), App.Vector(-7.4, 7.4, 0)),  # 1
    Part.LineSegment(App.Vector(-7.4, 7.4, 0), App.Vector(-7.4, 4.6, 0)),  # 2
    Part.LineSegment(App.Vector(-7.4, 4.6, 0), App.Vector(-33, 4.6, 0)),  # 3
    Part.LineSegment(App.Vector(-33, -7.4, 0), App.Vector(-33, -4.6, 0)),  # 4
    Part.LineSegment(App.Vector(-33, -4.6, 0), App.Vector(-7.4, -4.6, 0)),  # 5
    Part.LineSegment(App.Vector(-7.4, -4.6, 0), App.Vector(-7.4, -7.4, 0)),  # 6
    Part.LineSegment(App.Vector(-7.4, -7.4, 0), App.Vector(-33, -7.4, 0)),  # 7
    Part.LineSegment(App.Vector(7.4, -7.4, 0), App.Vector(7.4, -4.6, 0)),  # 8
    Part.LineSegment(App.Vector(7.4, -4.6, 0), App.Vector(33, -4.6, 0)),  # 9
    Part.LineSegment(App.Vector(33, -4.6, 0), App.Vector(33, -7.4, 0)),  # 10
    Part.LineSegment(App.Vector(33, -7.4, 0), App.Vector(7.4, -7.4, 0)),  # 11
    Part.LineSegment(App.Vector(7.4, 4.6, 0), App.Vector(7.4, 7.4, 0)),  # 12
    Part.LineSegment(App.Vector(7.4, 7.4, 0), App.Vector(33, 7.4, 0)),  # 13
    Part.LineSegment(App.Vector(33, 7.4, 0), App.Vector(33, 4.6, 0)),  # 14
    Part.LineSegment(App.Vector(33, 4.6, 0), App.Vector(7.4, 4.6, 0)),  # 15
], False)
sketch11.addConstraint([
    Sketcher.Constraint("Coincident", 0, 2, 1, 1),
    Sketcher.Constraint("Coincident", 1, 2, 2, 1),
    Sketcher.Constraint("Coincident", 2, 2, 3, 1),
    Sketcher.Constraint("Coincident", 3, 2, 0, 1),
    Sketcher.Constraint("Coincident", 4, 2, 5, 1),
    Sketcher.Constraint("Coincident", 5, 2, 6, 1),
    Sketcher.Constraint("Coincident", 6, 2, 7, 1),
    Sketcher.Constraint("Coincident", 7, 2, 4, 1),
    Sketcher.Constraint("Coincident", 8, 2, 9, 1),
    Sketcher.Constraint("Coincident", 9, 2, 10, 1),
    Sketcher.Constraint("Coincident", 10, 2, 11, 1),
    Sketcher.Constraint("Coincident", 11, 2, 8, 1),
    Sketcher.Constraint("Coincident", 12, 2, 13, 1),
    Sketcher.Constraint("Coincident", 13, 2, 14, 1),
    Sketcher.Constraint("Coincident", 14, 2, 15, 1),
    Sketcher.Constraint("Coincident", 15, 2, 12, 1),
    Sketcher.Constraint("Vertical", 0),
    Sketcher.Constraint("Horizontal", 1),
    Sketcher.Constraint("Vertical", 2),
    Sketcher.Constraint("Horizontal", 3),
    Sketcher.Constraint("Vertical", 4),
    Sketcher.Constraint("Horizontal", 5),
    Sketcher.Constraint("Vertical", 6),
    Sketcher.Constraint("Horizontal", 7),
    Sketcher.Constraint("Vertical", 8),
    Sketcher.Constraint("Horizontal", 9),
    Sketcher.Constraint("Vertical", 10),
    Sketcher.Constraint("Horizontal", 11),
    Sketcher.Constraint("Vertical", 12),
    Sketcher.Constraint("Horizontal", 13),
    Sketcher.Constraint("Vertical", 14),
    Sketcher.Constraint("Horizontal", 15),
    Sketcher.Constraint("Symmetric", 2, 2, 8, 2, -1, 1),
    Sketcher.Constraint("Symmetric", 0, 2, 10, 2, -1, 1),
    Sketcher.Constraint("Symmetric", 6, 2, 12, 2, -1, 1),
    Sketcher.Constraint("Symmetric", 4, 2, 14, 2, -1, 1),
    Sketcher.Constraint("Symmetric", 5, 2, 8, 2, -2),
    Sketcher.Constraint("Symmetric", 7, 2, 10, 2, -2),
    Sketcher.Constraint("DistanceX", 0, 2, -1, 1, 33.0),
    Sketcher.Constraint("DistanceX", 1, 1, 1, 2, 25.575379),
    Sketcher.Constraint("DistanceY", 0, 1, 0, 2, 2.842046),
    Sketcher.Constraint("DistanceY", -1, 1, 0, 2, 7.424621),
])
pad5 = body.newObject("PartDesign::Pad", "Pad004")
pad5.Profile = sketch11
pad5.Length = 7
pad5.Reversed = True

doc.recompute()
